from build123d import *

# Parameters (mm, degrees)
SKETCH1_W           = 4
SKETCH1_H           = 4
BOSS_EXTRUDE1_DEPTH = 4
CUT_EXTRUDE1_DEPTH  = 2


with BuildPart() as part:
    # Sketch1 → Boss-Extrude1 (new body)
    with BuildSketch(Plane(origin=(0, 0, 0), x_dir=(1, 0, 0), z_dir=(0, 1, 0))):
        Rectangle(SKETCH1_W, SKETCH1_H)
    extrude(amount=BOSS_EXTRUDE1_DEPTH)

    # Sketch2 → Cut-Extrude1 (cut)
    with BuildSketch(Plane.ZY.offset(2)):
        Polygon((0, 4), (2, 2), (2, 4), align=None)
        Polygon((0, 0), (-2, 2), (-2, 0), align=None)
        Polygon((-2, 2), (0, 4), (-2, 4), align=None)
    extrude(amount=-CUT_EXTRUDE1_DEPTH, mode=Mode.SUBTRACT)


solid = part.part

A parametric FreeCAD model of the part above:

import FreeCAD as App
import Part
import Sketcher
from FreeCAD import Vector
Q = App.Units.Quantity


def add_polygon(sketch, points):
    """Adds a closed chain of lines whose ends are joined by coincident constraints."""
    first, n = sketch.GeometryCount, len(points)
    for a, b in zip(points, points[1:] + points[:1]):
        sketch.addGeometry(Part.LineSegment(App.Vector(*a, 0), App.Vector(*b, 0)), False)
    for i in range(n):
        sketch.addConstraint(Sketcher.Constraint("Coincident", first + i, 2, first + (i + 1) % n, 1))

doc = App.newDocument("Part")
params = doc.addObject("Spreadsheet::Sheet", "Params")
for row, (alias, value) in enumerate([
    ("sketch1_width", "4 mm"),
    ("pad1_length", "4 mm"),
    ("sketch2_width", "2 mm"),
    ("pocket1_length", "2 mm"),
], start=1):
    params.set(f"A{row}", alias)
    params.set(f"B{row}", "=" + value)
    params.setAlias(f"B{row}", alias)

body = doc.addObject("PartDesign::Body", "Body")

sketch1 = body.newObject("Sketcher::SketchObject", "Sketch")
sketch1.AttachmentSupport = (doc.getObject("XZ_Plane"), [""])
sketch1.MapMode = "FlatFace"
add_polygon(sketch1, [(-2, -2), (-2, 2), (2, 2), (2, -2)])
sketch1.addConstraint([
    Sketcher.Constraint("Vertical", 0),
    Sketcher.Constraint("Horizontal", 1),
    Sketcher.Constraint("Vertical", 2),
    Sketcher.Constraint("Horizontal", 3),
    Sketcher.Constraint("Symmetric", 0, 2, 2, 2, -1, 1),
    Sketcher.Constraint("Equal", 3, 0),
    Sketcher.Constraint("DistanceX", 1, 1, 1, 2, Q("4 mm")),
])
sketch1.setExpression("Constraints[10]", "Params.sketch1_width")
pad1 = body.newObject("PartDesign::Pad", "Pad")
pad1.Profile = sketch1
pad1.setExpression("Length", "Params.pad1_length")
pad1.Reversed = True

sketch2 = body.newObject("Sketcher::SketchObject", "Sketch001")
sketch2.AttachmentSupport = (doc.getObject("YZ_Plane"), [""])
sketch2.MapMode = "FlatFace"
sketch2.AttachmentOffset = App.Placement(Vector(0, 0, -2), App.Rotation())
add_polygon(sketch2, [(4, 0), (2, 2), (4, 2)])
add_polygon(sketch2, [(0, 0), (2, -2), (0, -2)])
add_polygon(sketch2, [(2, -2), (4, 0), (4, -2)])
sketch2.addConstraint([
    Sketcher.Constraint("Horizontal", 1),
    Sketcher.Constraint("Vertical", 2),
    Sketcher.Constraint("Horizontal", 4),
    Sketcher.Constraint("Vertical", 5),
    Sketcher.Constraint("Vertical", 7),
    Sketcher.Constraint("Horizontal", 8),
    Sketcher.Constraint("Coincident", 5, 2, -1, 1),
    Sketcher.Constraint("Coincident", 6, 2, 2, 2),
    Sketcher.Constraint("Coincident", 8, 2, 3, 2),
    Sketcher.Constraint("Symmetric", 0, 2, 3, 2, -1),
    Sketcher.Constraint("PointOnObject", 2, 2, -1),
    Sketcher.Constraint("Parallel", 0, 3),
    Sketcher.Constraint("Perpendicular", 3, 6),
    Sketcher.Constraint("DistanceX", 1, 1, 1, 2, Q("2 mm")),
])
sketch2.setExpression("Constraints[22]", "Params.sketch2_width")
pocket1 = body.newObject("PartDesign::Pocket", "Pocket")
pocket1.Profile = sketch2
pocket1.setExpression("Length", "Params.pocket1_length")
pocket1.Reversed = True

doc.recompute()
